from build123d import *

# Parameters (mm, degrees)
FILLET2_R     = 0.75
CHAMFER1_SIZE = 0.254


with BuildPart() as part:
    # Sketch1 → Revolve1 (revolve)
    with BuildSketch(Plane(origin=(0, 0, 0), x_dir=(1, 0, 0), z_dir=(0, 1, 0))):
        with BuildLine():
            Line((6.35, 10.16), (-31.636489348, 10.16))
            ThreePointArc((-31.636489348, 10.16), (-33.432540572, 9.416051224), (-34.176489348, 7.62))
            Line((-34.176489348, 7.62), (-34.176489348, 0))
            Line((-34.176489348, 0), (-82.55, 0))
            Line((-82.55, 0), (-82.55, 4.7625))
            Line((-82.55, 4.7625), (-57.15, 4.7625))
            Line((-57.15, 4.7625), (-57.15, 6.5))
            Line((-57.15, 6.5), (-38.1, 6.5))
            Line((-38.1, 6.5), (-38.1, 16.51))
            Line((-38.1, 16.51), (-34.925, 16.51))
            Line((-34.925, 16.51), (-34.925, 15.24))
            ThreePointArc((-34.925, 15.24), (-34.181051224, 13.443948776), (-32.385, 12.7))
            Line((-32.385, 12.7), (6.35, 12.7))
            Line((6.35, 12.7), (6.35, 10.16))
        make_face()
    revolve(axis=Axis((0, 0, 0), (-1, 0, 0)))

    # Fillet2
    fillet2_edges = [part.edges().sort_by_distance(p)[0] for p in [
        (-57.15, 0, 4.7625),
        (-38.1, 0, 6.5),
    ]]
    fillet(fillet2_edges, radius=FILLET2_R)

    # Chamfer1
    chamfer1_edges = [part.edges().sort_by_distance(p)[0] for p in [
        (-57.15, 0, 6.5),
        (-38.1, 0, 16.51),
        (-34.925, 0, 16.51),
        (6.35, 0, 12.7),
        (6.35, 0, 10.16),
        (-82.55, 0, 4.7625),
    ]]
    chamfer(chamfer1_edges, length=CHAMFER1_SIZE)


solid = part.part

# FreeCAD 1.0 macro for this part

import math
import FreeCAD as App
import Part
import Sketcher
Q = App.Units.Quantity


def edges_at(feature, points):
    """Names of the edges that pass closest to the given points."""
    edges = feature.Shape.Edges
    near = lambda p: min(range(len(edges)), key=lambda i: edges[i].distToShape(Part.Vertex(*p))[0])
    return sorted({f"Edge{near(p) + 1}" for p in points})

doc = App.newDocument("Part")
params = doc.addObject("Spreadsheet::Sheet", "Params")
for row, (alias, value) in enumerate([
    ("sketch1_radius", "0.1 in"),
    ("sketch1_width", "1 in"),
    ("sketch1_height", "0.1 in"),
    ("sketch1_height2", "0.3 in"),
    ("sketch1_width2", "0.75 in"),
    ("revolution_angle", "360 deg"),
    ("fillet_radius", "0.75 mm"),
    ("chamfer_size", "0.01 in"),
], start=1):
    params.set(f"A{row}", alias)
    params.set(f"B{row}", "=" + value)
    params.setAlias(f"B{row}", alias)

body = doc.addObject("PartDesign::Body", "Body")

# Sketch on XZ plane
sketch1 = body.newObject("Sketcher::SketchObject", "Sketch")
sketch1.AttachmentSupport = (doc.getObject("XZ_Plane"), [""])
sketch1.MapMode = "FlatFace"
sketch1.addGeometry(Part.LineSegment(App.Vector(-31.636489, -10.16, 0), App.Vector(6.35, -10.16, 0)), False)
sketch1.addGeometry(Part.LineSegment(App.Vector(6.35, -10.16, 0), App.Vector(6.35, -12.7, 0)), False)
sketch1.addGeometry(Part.LineSegment(App.Vector(6.35, -12.7, 0), App.Vector(-32.385, -12.7, 0)), False)
sketch1.addGeometry(Part.ArcOfCircle(Part.Circle(App.Vector(-32.385, -15.24, 0), App.Vector(0, 0, 1), 2.54), math.radians(90), math.radians(180)), False)
sketch1.addGeometry(Part.LineSegment(App.Vector(-34.925, -15.24, 0), App.Vector(-34.925, -16.51, 0)), False)
sketch1.addGeometry(Part.LineSegment(App.Vector(-34.925, -16.51, 0), App.Vector(-38.1, -16.51, 0)), False)
sketch1.addGeometry(Part.LineSegment(App.Vector(-38.1, -16.51, 0), App.Vector(-38.1, -6.5, 0)), False)
sketch1.addGeometry(Part.LineSegment(App.Vector(-38.1, -6.5, 0), App.Vector(-57.15, -6.5, 0)), False)
sketch1.addGeometry(Part.LineSegment(App.Vector(-57.15, -6.5, 0), App.Vector(-57.15, -4.7625, 0)), False)
sketch1.addGeometry(Part.LineSegment(App.Vector(-57.15, -4.7625, 0), App.Vector(-82.55, -4.7625, 0)), False)
sketch1.addGeometry(Part.LineSegment(App.Vector(-82.55, -4.7625, 0), App.Vector(-82.55, 0, 0)), False)
sketch1.addGeometry(Part.LineSegment(App.Vector(-82.55, 0, 0), App.Vector(-34.176489, 0, 0)), False)
sketch1.addGeometry(Part.LineSegment(App.Vector(-34.176489, 0, 0), App.Vector(-34.176489, -7.62, 0)), False)
sketch1.addGeometry(Part.ArcOfCircle(Part.Circle(App.Vector(-31.636489, -7.62, 0), App.Vector(0, 0, 1), 2.54), math.radians(-180), math.radians(-90)), False)
sketch1.addConstraint(Sketcher.Constraint("Coincident", 0, 2, 1, 1))
sketch1.addConstraint(Sketcher.Constraint("Coincident", 1, 2, 2, 1))
sketch1.addConstraint(Sketcher.Constraint("Tangent", 2, 2, 3, 1))
sketch1.addConstraint(Sketcher.Constraint("Tangent", 3, 2, 4, 1))
sketch1.addConstraint(Sketcher.Constraint("Coincident", 4, 2, 5, 1))
sketch1.addConstraint(Sketcher.Constraint("Coincident", 5, 2, 6, 1))
sketch1.addConstraint(Sketcher.Constraint("Coincident", 6, 2, 7, 1))
sketch1.addConstraint(Sketcher.Constraint("Coincident", 7, 2, 8, 1))
sketch1.addConstraint(Sketcher.Constraint("Coincident", 8, 2, 9, 1))
sketch1.addConstraint(Sketcher.Constraint("Coincident", 9, 2, 10, 1))
sketch1.addConstraint(Sketcher.Constraint("Coincident", 10, 2, 11, 1))
sketch1.addConstraint(Sketcher.Constraint("Coincident", 11, 2, 12, 1))
sketch1.addConstraint(Sketcher.Constraint("Tangent", 12, 2, 13, 1))
sketch1.addConstraint(Sketcher.Constraint("Tangent", 13, 2, 0, 1))
sketch1.addConstraint(Sketcher.Constraint("Horizontal", 0))
sketch1.addConstraint(Sketcher.Constraint("Vertical", 1))
sketch1.addConstraint(Sketcher.Constraint("Horizontal", 2))
sketch1.addConstraint(Sketcher.Constraint("Vertical", 4))
sketch1.addConstraint(Sketcher.Constraint("Horizontal", 5))
sketch1.addConstraint(Sketcher.Constraint("Vertical", 6))
sketch1.addConstraint(Sketcher.Constraint("Horizontal", 7))
sketch1.addConstraint(Sketcher.Constraint("Vertical", 8))
sketch1.addConstraint(Sketcher.Constraint("Horizontal", 9))
sketch1.addConstraint(Sketcher.Constraint("Vertical", 10))
sketch1.addConstraint(Sketcher.Constraint("Horizontal", 11))
sketch1.addConstraint(Sketcher.Constraint("Vertical", 12))
sketch1.addConstraint(Sketcher.Constraint("Equal", 3, 13))
sketch1.addConstraint(Sketcher.Constraint("PointOnObject", 10, 2, -1))
sketch1.addConstraint(Sketcher.Constraint("Radius", 3, Q("0.1 in")))
sketch1.addConstraint(Sketcher.Constraint("DistanceX", 9, 2, 9, 1, Q("1 in")))
sketch1.addConstraint(Sketcher.Constraint("DistanceY", 1, 2, 1, 1, Q("0.1 in")))
sketch1.addConstraint(Sketcher.Constraint("DistanceY", 12, 2, 12, 1, Q("0.3 in")))
sketch1.addConstraint(Sketcher.Constraint("DistanceX", 7, 2, 7, 1, Q("0.75 in")))
sketch1.addConstraint(Sketcher.Constraint("DistanceY", 4, 2, 4, 1, Q("0.05 in")))
sketch1.addConstraint(Sketcher.Constraint("DistanceX", 5, 2, -1, 1, Q("1.5 in")))
sketch1.addConstraint(Sketcher.Constraint("DistanceX", 2, 2, 2, 1, Q("1.525 in")))
sketch1.addConstraint(Sketcher.Constraint("DistanceX", 5, 2, 5, 1, Q("0.125 in")))
sketch1.addConstraint(Sketcher.Constraint("DistanceY", 10, 1, 10, 2, Q("0.1875 in")))
sketch1.addConstraint(Sketcher.Constraint("DistanceY", 6, 1, 6, 2, Q("10.01 mm")))
sketch1.addConstraint(Sketcher.Constraint("DistanceX", 0, 1, 0, 2, Q("37.986489 mm")))
sketch1.setExpression("Constraints[28]", "Params.sketch1_radius")
sketch1.setExpression("Constraints[29]", "Params.sketch1_width")
sketch1.setExpression("Constraints[30]", "Params.sketch1_height")
sketch1.setExpression("Constraints[31]", "Params.sketch1_height2")
sketch1.setExpression("Constraints[32]", "Params.sketch1_width2")
revolution = body.newObject("PartDesign::Revolution", "Revolution")
revolution.Profile = sketch1
revolution.ReferenceAxis = (sketch1, ["H_Axis"])
revolution.setExpression("Angle", "Params.revolution_angle")
doc.recompute()

fillet = body.newObject("PartDesign::Fillet", "Fillet")
fillet.Base = (revolution, edges_at(revolution, [(-57.15, 0, 4.763), (-38.1, 0, 6.5)]))
fillet.setExpression("Radius", "Params.fillet_radius")
doc.recompute()

chamfer = body.newObject("PartDesign::Chamfer", "Chamfer")
chamfer.Base = (fillet, edges_at(fillet, [
    (-57.15, 0, 6.5),
    (-38.1, 0, 16.51),
    (-34.925, 0, 16.51),
    (6.35, 0, 12.7),
    (6.35, 0, 10.16),
    (-82.55, 0, 4.763),
]))
chamfer.setExpression("Size", "Params.chamfer_size")

doc.recompute()
